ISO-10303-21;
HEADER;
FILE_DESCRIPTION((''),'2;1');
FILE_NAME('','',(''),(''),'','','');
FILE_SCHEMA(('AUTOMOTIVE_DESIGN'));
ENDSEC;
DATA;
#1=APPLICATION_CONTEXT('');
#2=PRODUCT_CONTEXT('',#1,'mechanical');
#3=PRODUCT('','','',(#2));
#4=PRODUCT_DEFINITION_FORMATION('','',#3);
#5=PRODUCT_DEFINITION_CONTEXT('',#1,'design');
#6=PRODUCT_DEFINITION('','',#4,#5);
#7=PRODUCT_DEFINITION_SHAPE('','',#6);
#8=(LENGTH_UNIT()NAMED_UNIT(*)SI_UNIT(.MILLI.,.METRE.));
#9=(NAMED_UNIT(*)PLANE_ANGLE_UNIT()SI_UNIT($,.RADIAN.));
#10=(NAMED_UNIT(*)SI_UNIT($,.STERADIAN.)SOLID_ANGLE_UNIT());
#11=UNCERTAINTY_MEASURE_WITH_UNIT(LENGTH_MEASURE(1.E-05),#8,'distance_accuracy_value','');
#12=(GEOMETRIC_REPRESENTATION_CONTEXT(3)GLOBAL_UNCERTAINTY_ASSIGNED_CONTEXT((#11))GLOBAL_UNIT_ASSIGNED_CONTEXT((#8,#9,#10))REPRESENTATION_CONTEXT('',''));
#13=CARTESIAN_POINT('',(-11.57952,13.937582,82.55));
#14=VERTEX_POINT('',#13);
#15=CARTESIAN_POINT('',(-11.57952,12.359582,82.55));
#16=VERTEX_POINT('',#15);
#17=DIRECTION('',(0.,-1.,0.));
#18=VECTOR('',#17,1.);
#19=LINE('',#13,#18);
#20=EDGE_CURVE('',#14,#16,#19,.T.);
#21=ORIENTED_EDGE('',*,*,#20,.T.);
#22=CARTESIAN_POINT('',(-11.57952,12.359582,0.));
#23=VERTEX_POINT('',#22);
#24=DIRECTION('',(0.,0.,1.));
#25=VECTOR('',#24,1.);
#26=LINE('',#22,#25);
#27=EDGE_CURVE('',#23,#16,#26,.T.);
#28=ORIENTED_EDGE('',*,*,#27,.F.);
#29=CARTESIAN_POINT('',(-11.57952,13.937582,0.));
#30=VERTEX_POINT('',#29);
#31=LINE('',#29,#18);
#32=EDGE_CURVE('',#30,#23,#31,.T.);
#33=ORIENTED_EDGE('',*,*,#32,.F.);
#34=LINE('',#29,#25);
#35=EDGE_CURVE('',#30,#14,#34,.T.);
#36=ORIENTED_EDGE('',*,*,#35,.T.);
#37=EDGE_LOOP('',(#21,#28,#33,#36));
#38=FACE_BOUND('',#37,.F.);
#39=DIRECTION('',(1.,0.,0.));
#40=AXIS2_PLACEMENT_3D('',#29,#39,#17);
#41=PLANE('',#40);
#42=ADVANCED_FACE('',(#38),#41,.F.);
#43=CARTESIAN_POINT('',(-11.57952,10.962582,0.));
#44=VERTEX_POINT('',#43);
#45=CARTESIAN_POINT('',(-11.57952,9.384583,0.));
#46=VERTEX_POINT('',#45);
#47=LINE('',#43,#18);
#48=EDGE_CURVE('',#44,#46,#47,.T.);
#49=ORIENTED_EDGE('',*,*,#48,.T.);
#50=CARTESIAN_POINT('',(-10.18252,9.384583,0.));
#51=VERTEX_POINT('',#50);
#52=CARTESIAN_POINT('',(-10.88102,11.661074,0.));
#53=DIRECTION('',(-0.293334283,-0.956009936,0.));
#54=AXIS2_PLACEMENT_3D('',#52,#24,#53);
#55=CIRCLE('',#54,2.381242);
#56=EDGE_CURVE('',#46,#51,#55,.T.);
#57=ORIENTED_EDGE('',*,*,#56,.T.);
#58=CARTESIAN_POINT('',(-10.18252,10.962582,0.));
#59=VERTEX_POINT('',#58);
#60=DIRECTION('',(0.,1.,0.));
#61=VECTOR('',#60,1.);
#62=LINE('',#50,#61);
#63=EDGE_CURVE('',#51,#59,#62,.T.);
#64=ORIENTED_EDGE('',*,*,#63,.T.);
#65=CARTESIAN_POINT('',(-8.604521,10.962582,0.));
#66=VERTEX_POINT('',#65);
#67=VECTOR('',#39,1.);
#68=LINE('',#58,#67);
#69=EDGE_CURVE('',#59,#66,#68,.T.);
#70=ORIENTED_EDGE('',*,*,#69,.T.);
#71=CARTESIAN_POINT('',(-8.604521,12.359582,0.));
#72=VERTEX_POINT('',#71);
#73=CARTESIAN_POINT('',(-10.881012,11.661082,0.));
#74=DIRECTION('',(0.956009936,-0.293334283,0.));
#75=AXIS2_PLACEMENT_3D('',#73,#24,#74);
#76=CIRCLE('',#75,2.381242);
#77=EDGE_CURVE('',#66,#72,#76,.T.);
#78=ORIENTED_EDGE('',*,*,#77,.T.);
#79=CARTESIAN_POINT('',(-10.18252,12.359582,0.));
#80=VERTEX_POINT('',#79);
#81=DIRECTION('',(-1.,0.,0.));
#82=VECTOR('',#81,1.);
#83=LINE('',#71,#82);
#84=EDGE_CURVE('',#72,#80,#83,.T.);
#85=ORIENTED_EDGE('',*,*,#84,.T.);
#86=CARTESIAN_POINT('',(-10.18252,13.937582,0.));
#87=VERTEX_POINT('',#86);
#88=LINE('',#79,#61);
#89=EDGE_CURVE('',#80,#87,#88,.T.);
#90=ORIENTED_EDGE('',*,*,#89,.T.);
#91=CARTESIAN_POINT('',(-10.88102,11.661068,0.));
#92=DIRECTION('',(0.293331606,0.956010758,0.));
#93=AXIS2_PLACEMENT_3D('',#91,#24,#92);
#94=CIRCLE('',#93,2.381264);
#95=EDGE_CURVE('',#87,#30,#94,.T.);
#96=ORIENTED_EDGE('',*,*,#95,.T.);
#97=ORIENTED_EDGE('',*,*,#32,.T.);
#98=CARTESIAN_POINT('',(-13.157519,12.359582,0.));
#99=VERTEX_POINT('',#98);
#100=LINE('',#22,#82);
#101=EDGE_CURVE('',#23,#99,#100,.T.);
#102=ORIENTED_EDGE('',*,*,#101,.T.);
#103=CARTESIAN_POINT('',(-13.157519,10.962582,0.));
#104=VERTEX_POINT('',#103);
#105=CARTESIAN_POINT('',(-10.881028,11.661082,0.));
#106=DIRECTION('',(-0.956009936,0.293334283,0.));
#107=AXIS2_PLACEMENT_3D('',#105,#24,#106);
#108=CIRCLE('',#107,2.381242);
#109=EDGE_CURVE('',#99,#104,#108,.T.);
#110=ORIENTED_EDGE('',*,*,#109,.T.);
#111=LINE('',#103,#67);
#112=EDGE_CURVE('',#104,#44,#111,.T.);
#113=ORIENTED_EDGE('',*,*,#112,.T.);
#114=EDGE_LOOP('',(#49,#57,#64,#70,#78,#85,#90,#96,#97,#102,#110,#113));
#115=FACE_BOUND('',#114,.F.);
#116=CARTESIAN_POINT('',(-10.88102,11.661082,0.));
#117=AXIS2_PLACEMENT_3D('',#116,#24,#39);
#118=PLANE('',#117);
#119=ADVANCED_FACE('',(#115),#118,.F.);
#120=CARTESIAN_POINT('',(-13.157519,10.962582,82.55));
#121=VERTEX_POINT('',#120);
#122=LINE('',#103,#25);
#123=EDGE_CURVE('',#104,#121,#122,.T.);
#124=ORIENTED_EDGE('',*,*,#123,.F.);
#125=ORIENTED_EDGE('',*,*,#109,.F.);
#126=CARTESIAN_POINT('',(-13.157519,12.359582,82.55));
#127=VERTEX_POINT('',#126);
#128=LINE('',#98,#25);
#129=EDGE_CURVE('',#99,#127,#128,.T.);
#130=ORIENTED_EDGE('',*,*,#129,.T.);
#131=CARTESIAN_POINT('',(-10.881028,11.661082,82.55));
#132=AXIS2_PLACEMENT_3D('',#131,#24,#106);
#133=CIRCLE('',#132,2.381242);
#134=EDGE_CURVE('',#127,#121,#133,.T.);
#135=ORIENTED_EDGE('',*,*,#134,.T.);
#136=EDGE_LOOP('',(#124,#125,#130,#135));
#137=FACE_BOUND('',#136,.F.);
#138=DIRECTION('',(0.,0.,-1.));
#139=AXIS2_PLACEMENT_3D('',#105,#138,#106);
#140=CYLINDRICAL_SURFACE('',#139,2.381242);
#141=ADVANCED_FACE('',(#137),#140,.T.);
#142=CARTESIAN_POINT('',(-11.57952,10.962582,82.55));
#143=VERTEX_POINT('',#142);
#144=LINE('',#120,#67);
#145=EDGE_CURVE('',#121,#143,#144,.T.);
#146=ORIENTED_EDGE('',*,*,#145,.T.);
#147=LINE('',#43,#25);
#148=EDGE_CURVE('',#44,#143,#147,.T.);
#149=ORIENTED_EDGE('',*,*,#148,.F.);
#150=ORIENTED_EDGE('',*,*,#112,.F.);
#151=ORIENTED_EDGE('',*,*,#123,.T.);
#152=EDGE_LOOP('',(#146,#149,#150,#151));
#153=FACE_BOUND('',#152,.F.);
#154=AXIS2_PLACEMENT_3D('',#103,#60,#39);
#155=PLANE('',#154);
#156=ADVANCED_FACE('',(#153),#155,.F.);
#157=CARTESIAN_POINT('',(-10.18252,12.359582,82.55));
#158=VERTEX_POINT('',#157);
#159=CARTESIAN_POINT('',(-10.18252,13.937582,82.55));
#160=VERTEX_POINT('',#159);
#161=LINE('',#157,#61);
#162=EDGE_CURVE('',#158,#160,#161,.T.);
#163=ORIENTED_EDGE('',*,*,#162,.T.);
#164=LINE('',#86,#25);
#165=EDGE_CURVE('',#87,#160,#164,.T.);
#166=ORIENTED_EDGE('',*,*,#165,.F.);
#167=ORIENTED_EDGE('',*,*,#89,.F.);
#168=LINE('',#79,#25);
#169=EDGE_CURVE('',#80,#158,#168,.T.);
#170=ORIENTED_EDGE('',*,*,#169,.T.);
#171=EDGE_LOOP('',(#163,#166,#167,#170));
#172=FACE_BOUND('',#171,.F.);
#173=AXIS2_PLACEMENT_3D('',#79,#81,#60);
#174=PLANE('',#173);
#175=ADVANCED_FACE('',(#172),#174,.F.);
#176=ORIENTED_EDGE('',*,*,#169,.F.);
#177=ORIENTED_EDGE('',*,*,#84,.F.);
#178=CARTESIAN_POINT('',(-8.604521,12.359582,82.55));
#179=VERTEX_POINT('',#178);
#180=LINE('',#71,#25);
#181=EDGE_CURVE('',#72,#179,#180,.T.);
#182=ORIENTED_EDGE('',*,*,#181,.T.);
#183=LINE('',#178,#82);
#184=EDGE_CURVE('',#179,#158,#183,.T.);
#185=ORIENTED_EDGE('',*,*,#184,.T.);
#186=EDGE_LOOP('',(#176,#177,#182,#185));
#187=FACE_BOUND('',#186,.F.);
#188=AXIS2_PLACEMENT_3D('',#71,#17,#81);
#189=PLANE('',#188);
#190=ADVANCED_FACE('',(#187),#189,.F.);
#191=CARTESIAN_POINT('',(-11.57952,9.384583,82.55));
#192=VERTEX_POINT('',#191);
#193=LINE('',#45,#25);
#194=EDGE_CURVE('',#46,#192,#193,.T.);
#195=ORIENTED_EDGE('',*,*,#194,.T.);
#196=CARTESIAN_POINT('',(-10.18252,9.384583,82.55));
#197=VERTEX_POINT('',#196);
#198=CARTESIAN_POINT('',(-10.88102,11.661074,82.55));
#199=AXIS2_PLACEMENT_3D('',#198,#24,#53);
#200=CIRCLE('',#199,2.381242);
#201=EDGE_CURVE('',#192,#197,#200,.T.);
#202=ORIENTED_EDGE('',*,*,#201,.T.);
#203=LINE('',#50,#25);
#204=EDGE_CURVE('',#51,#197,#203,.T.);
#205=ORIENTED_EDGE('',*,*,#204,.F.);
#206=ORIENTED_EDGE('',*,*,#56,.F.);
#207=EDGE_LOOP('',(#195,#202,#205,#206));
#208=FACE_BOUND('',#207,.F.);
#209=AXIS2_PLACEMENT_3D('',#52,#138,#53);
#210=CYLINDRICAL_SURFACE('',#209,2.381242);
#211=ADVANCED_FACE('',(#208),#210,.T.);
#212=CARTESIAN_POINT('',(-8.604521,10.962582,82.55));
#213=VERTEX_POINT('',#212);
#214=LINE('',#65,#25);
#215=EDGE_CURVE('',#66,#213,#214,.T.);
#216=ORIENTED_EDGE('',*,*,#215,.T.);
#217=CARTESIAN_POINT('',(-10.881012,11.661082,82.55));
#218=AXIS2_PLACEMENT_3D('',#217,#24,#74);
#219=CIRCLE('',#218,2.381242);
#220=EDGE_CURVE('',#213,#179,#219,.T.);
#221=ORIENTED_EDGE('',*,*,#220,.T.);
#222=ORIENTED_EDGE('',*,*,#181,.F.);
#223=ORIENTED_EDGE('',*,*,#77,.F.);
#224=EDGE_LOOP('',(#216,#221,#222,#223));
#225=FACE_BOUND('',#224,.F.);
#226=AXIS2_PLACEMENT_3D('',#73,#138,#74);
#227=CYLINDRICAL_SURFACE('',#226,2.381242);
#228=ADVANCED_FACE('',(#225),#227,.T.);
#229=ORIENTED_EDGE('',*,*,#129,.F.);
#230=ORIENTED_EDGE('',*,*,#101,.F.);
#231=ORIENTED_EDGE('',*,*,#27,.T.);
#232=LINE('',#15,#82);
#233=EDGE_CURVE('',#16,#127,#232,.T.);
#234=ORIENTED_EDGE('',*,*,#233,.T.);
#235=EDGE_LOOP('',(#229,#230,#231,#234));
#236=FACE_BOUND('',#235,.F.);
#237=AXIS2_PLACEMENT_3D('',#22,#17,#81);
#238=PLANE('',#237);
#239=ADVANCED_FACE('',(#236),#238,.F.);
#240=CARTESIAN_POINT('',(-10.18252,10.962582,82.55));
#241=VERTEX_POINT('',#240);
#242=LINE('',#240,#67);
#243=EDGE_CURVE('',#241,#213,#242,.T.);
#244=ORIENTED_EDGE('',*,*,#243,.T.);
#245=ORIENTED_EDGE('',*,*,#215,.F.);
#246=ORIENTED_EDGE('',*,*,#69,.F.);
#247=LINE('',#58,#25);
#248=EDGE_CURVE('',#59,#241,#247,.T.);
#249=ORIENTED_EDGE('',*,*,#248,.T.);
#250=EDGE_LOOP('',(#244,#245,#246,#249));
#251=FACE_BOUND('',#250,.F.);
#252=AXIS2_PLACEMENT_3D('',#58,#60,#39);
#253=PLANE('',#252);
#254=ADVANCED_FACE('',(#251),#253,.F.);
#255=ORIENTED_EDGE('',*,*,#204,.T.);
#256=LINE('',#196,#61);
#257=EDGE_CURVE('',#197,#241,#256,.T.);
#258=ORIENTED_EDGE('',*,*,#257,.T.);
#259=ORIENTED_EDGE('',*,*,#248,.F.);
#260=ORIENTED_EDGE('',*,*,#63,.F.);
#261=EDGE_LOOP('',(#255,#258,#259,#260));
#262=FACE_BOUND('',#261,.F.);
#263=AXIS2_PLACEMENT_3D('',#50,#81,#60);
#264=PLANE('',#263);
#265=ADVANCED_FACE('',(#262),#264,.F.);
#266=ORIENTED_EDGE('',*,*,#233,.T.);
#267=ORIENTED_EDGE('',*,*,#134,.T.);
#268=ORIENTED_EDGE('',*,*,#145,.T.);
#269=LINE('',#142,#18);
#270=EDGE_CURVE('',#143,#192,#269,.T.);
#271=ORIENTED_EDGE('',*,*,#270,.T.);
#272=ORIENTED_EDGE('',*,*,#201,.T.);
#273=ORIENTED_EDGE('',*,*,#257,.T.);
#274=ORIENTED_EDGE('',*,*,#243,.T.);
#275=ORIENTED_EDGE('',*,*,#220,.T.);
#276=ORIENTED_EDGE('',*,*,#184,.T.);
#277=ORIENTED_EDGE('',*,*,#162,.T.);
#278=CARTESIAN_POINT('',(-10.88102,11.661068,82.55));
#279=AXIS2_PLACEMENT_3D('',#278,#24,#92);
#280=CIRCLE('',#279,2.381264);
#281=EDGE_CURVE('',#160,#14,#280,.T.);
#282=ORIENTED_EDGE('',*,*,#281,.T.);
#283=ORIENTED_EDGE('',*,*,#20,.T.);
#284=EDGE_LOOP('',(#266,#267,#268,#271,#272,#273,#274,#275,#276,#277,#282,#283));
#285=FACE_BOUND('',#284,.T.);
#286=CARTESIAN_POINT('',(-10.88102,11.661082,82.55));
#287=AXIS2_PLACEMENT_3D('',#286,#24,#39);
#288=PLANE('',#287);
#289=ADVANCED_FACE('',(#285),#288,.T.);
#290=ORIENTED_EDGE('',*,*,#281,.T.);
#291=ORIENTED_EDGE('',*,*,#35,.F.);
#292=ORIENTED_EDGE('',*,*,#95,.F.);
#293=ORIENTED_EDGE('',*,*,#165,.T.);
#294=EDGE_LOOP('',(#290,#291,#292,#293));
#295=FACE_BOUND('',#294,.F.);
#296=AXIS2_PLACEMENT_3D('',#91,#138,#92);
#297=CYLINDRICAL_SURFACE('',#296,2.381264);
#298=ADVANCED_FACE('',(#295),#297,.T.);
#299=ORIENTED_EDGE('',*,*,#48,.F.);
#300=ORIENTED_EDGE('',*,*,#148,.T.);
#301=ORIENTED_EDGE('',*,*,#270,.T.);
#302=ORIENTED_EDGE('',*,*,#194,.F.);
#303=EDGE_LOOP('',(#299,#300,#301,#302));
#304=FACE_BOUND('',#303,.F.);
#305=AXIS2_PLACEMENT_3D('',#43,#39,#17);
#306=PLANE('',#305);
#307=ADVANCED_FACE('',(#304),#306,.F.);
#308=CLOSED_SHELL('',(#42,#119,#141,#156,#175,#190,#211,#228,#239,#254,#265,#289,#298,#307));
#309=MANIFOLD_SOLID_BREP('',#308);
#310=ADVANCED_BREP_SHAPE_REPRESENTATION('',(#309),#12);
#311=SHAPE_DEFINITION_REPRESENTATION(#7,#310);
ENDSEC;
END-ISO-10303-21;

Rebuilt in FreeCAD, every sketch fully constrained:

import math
import FreeCAD as App
import Part
import Sketcher

V = App.Vector
Q = App.Units.Quantity

doc = App.newDocument("Part")
body = doc.addObject("PartDesign::Body", "Body")

# Sketch on XY plane
sketch1 = body.newObject("Sketcher::SketchObject", "Sketch")
sketch1.AttachmentSupport = (doc.getObject("XY_Plane"), [""])
sketch1.MapMode = "FlatFace"
sketch1.addGeometry([
    Part.LineSegment(V(-11.6, 11, 0), V(-11.6, 9.4, 0)),  # 0
    Part.ArcOfCircle(Part.Circle(V(-10.9, 11.7, 0), V(0, 0, 1), 2.4), math.radians(-107), math.radians(-73)),  # 1
    Part.LineSegment(V(-10.2, 9.4, 0), V(-10.2, 11, 0)),  # 2
    Part.LineSegment(V(-10.2, 11, 0), V(-8.6, 11, 0)),  # 3
    Part.ArcOfCircle(Part.Circle(V(-10.9, 11.7, 0), V(0, 0, 1), 2.4), math.radians(-17), math.radians(17)),  # 4
    Part.LineSegment(V(-8.6, 12.4, 0), V(-10.2, 12.4, 0)),  # 5
    Part.LineSegment(V(-10.2, 12.4, 0), V(-10.2, 13.9, 0)),  # 6
    Part.ArcOfCircle(Part.Circle(V(-10.9, 11.7, 0), V(0, 0, 1), 2.4), math.radians(73), math.radians(107)),  # 7
    Part.LineSegment(V(-11.6, 13.9, 0), V(-11.6, 12.4, 0)),  # 8
    Part.LineSegment(V(-11.6, 12.4, 0), V(-13.2, 12.4, 0)),  # 9
    Part.ArcOfCircle(Part.Circle(V(-10.9, 11.7, 0), V(0, 0, 1), 2.4), math.radians(163), math.radians(197)),  # 10
    Part.LineSegment(V(-13.2, 11, 0), V(-11.6, 11, 0)),  # 11
], False)
sketch1.addConstraint([
    Sketcher.Constraint("Coincident", 0, 2, 1, 1),
    Sketcher.Constraint("Coincident", 1, 2, 2, 1),
    Sketcher.Constraint("Coincident", 2, 2, 3, 1),
    Sketcher.Constraint("Coincident", 3, 2, 4, 1),
    Sketcher.Constraint("Coincident", 4, 2, 5, 1),
    Sketcher.Constraint("Coincident", 5, 2, 6, 1),
    Sketcher.Constraint("Coincident", 6, 2, 7, 1),
    Sketcher.Constraint("Coincident", 7, 2, 8, 1),
    Sketcher.Constraint("Coincident", 8, 2, 9, 1),
    Sketcher.Constraint("Coincident", 9, 2, 10, 1),
    Sketcher.Constraint("Coincident", 10, 2, 11, 1),
    Sketcher.Constraint("Coincident", 11, 2, 0, 1),
    Sketcher.Constraint("Vertical", 0),
    Sketcher.Constraint("Vertical", 2),
    Sketcher.Constraint("Horizontal", 3),
    Sketcher.Constraint("Horizontal", 5),
    Sketcher.Constraint("Vertical", 6),
    Sketcher.Constraint("Vertical", 8),
    Sketcher.Constraint("Horizontal", 9),
    Sketcher.Constraint("Horizontal", 11),
    Sketcher.Constraint("Coincident", 7, 3, 1, 3),
    Sketcher.Constraint("Equal", 1, 4),
    Sketcher.Constraint("Equal", 4, 10),
    Sketcher.Constraint("Horizontal", 4, 3, 10, 3),
    Sketcher.Constraint("Horizontal", 0, 2, 1, 2),
    Sketcher.Constraint("Horizontal", 6, 2, 7, 2),
    Sketcher.Constraint("Horizontal", 5, 2, 8, 2),
    Sketcher.Constraint("Horizontal", 3, 2, 10, 2),
    Sketcher.Constraint("Vertical", 3, 2, 4, 2),
    Sketcher.Constraint("Vertical", 2, 2, 5, 2),
    Sketcher.Constraint("Equal", 5, 9),
    Sketcher.Constraint("Equal", 11, 0),
    Sketcher.Constraint("Equal", 2, 6),
    Sketcher.Constraint("DistanceX", 0, 2, 1, 2, Q("0.055 in")),
    Sketcher.Constraint("DistanceY", 3, 2, 4, 2, Q("0.055 in")),
    Sketcher.Constraint("DistanceX", 3, 1, 3, 2, Q("1.577999 mm")),
    Sketcher.Constraint("Radius", 1, Q("2.381242 mm")),
    Sketcher.Constraint("DistanceX", 1, 3, -1, 1, Q("10.88102 mm")),
    Sketcher.Constraint("DistanceY", -1, 1, 2, 2, Q("10.962582 mm")),
])
pad1 = body.newObject("PartDesign::Pad", "Pad")
pad1.Profile = sketch1
pad1.Length = Q("3.25 in")

doc.recompute()
